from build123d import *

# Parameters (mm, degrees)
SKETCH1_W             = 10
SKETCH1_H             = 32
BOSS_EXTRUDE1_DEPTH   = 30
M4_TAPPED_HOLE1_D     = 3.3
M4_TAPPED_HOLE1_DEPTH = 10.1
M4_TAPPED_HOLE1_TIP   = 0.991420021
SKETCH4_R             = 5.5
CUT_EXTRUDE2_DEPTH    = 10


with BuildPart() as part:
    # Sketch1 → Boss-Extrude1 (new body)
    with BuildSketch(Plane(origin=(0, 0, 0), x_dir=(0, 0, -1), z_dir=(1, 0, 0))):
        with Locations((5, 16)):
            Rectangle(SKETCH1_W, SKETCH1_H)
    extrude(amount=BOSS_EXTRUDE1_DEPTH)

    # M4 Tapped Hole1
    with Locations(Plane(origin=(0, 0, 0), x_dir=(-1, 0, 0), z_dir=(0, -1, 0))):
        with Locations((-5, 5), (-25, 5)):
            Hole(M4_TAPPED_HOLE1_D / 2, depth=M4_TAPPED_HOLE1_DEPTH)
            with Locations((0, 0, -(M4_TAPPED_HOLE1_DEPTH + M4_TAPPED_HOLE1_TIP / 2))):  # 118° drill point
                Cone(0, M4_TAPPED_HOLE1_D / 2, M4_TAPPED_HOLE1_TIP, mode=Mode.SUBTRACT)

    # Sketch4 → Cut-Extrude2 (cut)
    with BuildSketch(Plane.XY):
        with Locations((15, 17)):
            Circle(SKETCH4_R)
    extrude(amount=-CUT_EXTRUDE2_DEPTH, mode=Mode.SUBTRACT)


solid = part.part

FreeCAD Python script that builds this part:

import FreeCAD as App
import Part
import Sketcher
from FreeCAD import Vector
Q = App.Units.Quantity


def add_polygon(sketch, points):
    """Adds a closed chain of lines whose ends are joined by coincident constraints."""
    first, n = sketch.GeometryCount, len(points)
    for a, b in zip(points, points[1:] + points[:1]):
        sketch.addGeometry(Part.LineSegment(App.Vector(*a, 0), App.Vector(*b, 0)), False)
    for i in range(n):
        sketch.addConstraint(Sketcher.Constraint("Coincident", first + i, 2, first + (i + 1) % n, 1))

doc = App.newDocument("Part")
body = doc.addObject("PartDesign::Body", "Body")

# Sketch on YZ plane
sketch1 = body.newObject("Sketcher::SketchObject", "Sketch")
sketch1.AttachmentSupport = (doc.getObject("YZ_Plane"), [""])
sketch1.MapMode = "FlatFace"
add_polygon(sketch1, [(32, 0), (0, 0), (0, -10), (32, -10)])  # lines 0-3
sketch1.addConstraint([
    Sketcher.Constraint("Horizontal", 0),
    Sketcher.Constraint("Vertical", 1),
    Sketcher.Constraint("Horizontal", 2),
    Sketcher.Constraint("Vertical", 3),
    Sketcher.Constraint("Coincident", 0, 2, -1, 1),
    Sketcher.Constraint("DistanceX", 0, 2, 0, 1, Q("32 mm")),
    Sketcher.Constraint("DistanceY", 1, 2, 1, 1, Q("10 mm")),
])
pad1 = body.newObject("PartDesign::Pad", "Pad")
pad1.Profile = sketch1
pad1.Length = 30

# Sketch on XZ plane
sketch2 = body.newObject("Sketcher::SketchObject", "Sketch001")
sketch2.AttachmentSupport = (doc.getObject("XZ_Plane"), [""])
sketch2.MapMode = "FlatFace"
sketch2.addGeometry([
    Part.Circle(Vector(5, -5, 0), Vector(0, 0, 1), 1.6),
    Part.Circle(Vector(25, -5, 0), Vector(0, 0, 1), 1.6),
], False)
sketch2.addConstraint([
    Sketcher.Constraint("Equal", 0, 1),
    Sketcher.Constraint("Horizontal", 0, 3, 1, 3),
    Sketcher.Constraint("Diameter", 0, Q("3.3 mm")),
    Sketcher.Constraint("DistanceX", -1, 1, 0, 3, Q("5 mm")),
    Sketcher.Constraint("DistanceY", 0, 3, -1, 1, Q("5 mm")),
    Sketcher.Constraint("DistanceX", -1, 1, 1, 3, Q("25 mm")),
])
doc.recompute()
hole = body.newObject("PartDesign::Hole", "Hole")
hole.Profile = sketch2
hole.ThreadType = "None"
hole.Diameter = 3.3
hole.DepthType = "Dimension"
hole.Depth = 10.1
hole.DrillPoint = "Angled"
hole.DrillPointAngle = 118

# Sketch on XY plane
sketch3 = body.newObject("Sketcher::SketchObject", "Sketch002")
sketch3.AttachmentSupport = (doc.getObject("XY_Plane"), [""])
sketch3.MapMode = "FlatFace"
sketch3.addGeometry(Part.Circle(Vector(15, 17, 0), Vector(0, 0, 1), 6), False)
sketch3.addConstraint([
    Sketcher.Constraint("Diameter", 0, Q("11 mm")),
    Sketcher.Constraint("DistanceX", -1, 1, 0, 3, Q("15 mm")),
    Sketcher.Constraint("DistanceY", -1, 1, 0, 3, Q("17 mm")),
])
pocket1 = body.newObject("PartDesign::Pocket", "Pocket")
pocket1.Profile = sketch3
pocket1.Length = 10

doc.recompute()
